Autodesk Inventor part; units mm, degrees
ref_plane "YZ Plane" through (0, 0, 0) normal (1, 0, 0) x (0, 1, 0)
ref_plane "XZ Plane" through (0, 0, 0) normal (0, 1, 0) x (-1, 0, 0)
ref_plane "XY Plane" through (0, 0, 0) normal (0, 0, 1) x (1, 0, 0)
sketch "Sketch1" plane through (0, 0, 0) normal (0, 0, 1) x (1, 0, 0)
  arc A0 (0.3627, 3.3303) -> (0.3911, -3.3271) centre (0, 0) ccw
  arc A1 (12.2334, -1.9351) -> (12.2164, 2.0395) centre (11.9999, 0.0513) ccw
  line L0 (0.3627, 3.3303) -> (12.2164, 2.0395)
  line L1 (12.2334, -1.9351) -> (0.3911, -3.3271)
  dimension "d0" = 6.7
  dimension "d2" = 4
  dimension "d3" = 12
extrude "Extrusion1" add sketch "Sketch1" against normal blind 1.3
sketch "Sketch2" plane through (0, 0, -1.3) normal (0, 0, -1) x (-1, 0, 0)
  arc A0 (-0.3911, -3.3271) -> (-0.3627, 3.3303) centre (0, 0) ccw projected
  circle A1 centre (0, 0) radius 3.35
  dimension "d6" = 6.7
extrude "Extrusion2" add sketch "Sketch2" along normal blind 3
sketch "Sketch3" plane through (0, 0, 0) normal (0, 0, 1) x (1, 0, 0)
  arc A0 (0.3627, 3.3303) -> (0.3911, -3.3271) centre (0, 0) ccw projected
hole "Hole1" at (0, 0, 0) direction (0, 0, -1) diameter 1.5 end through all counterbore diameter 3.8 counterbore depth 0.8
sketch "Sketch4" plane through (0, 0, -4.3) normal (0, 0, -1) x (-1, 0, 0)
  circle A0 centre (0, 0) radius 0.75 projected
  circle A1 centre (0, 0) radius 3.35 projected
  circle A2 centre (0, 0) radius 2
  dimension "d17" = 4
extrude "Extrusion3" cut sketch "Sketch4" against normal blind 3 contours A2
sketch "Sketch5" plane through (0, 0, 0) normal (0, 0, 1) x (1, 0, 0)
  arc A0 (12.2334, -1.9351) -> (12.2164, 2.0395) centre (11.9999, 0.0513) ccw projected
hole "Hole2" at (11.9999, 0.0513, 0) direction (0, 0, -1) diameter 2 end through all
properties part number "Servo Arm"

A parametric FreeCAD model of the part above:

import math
import FreeCAD as App
import Part
import Sketcher
from FreeCAD import Vector

doc = App.newDocument("Part")
body = doc.addObject("PartDesign::Body", "Body")

sketch1 = doc.addObject("Sketcher::SketchObject", "Sketch")
body.addObject(sketch1)
sketch1.AttachmentSupport = (doc.XY_Plane, [""])
sketch1.MapMode = "FlatFace"
sketch1.addGeometry([
    Part.LineSegment(Vector(12.2, 2, 0), Vector(0.4, 3.3, 0)),
    Part.ArcOfCircle(Part.Circle(Vector(0, 0, 0), Vector(0, 0, 1), 3.3), math.radians(84), math.radians(277)),
    Part.LineSegment(Vector(0.4, -3.3, 0), Vector(12.2, -1.9, 0)),
    Part.ArcOfCircle(Part.Circle(Vector(12, 0.1, 0), Vector(0, 0, 1), 2), math.radians(-83), math.radians(84)),
], False)
sketch1.addConstraint([
    Sketcher.Constraint("Tangent", 0, 2, 1, 1),
    Sketcher.Constraint("Tangent", 1, 2, 2, 1),
    Sketcher.Constraint("Tangent", 2, 2, 3, 1),
    Sketcher.Constraint("Tangent", 3, 2, 0, 1),
    Sketcher.Constraint("Coincident", 1, 3, -1, 1),
    Sketcher.Constraint("Radius", 3, 2.0),
    Sketcher.Constraint("Radius", 1, 3.35),
    Sketcher.Constraint("DistanceX", -1, 1, 3, 3, 12.0),
    Sketcher.Constraint("DistanceX", -1, 1, 1, 2, 0.391),
])
pad1 = doc.addObject("PartDesign::Pad", "Pad")
body.addObject(pad1)
pad1.Profile = sketch1
pad1.Length = 1.3
pad1.Reversed = True

sketch2 = doc.addObject("Sketcher::SketchObject", "Sketch001")
body.addObject(sketch2)
sketch2.AttachmentSupport = (doc.XY_Plane, [""])
sketch2.MapMode = "FlatFace"
sketch2.AttachmentOffset = App.Placement(Vector(0, 0, -1.3), App.Rotation())
sketch2.addGeometry([
    Part.ArcOfCircle(Part.Circle(Vector(0, 0, 0), Vector(0, 0, 1), 3.4), math.radians(-83), math.radians(84)),
    Part.ArcOfCircle(Part.Circle(Vector(0, 0, 0), Vector(0, 0, 1), 3.4), math.radians(84), math.radians(277)),
], False)
sketch2.addConstraint([
    Sketcher.Constraint("Tangent", 0, 1, 1, 2),
    Sketcher.Constraint("Coincident", 1, 1, 0, 2),
    Sketcher.Constraint("Coincident", 0, 3, -1, 1),
    Sketcher.Constraint("Radius", 0, 3.35),
    Sketcher.Constraint("DistanceX", -1, 1, 0, 1, 0.391),
    Sketcher.Constraint("DistanceX", -1, 1, 1, 1, 0.3627),
])
pad2 = doc.addObject("PartDesign::Pad", "Pad001")
body.addObject(pad2)
pad2.Profile = sketch2
pad2.Length = 3
pad2.Reversed = True

sketch3 = doc.addObject("Sketcher::SketchObject", "Sketch002")
body.addObject(sketch3)
sketch3.AttachmentSupport = (doc.XY_Plane, [""])
sketch3.MapMode = "FlatFace"
sketch3.addGeometry(Part.Circle(Vector(0, 0, 0), Vector(0, 0, 1), 0.8), False)
sketch3.addConstraint([
    Sketcher.Constraint("Coincident", 0, 3, -1, 1),
    Sketcher.Constraint("Diameter", 0, 1.5),
])
doc.recompute()
hole = doc.addObject("PartDesign::Hole", "Hole")
body.addObject(hole)
hole.Profile = sketch3
hole.ThreadType = "None"
hole.Diameter = 1.5
hole.DepthType = "ThroughAll"
hole.HoleCutType = "Counterbore"
hole.HoleCutDiameter = 3.8
hole.HoleCutDepth = 0.8

sketch4 = doc.addObject("Sketcher::SketchObject", "Sketch003")
body.addObject(sketch4)
sketch4.AttachmentSupport = (doc.XY_Plane, [""])
sketch4.MapMode = "FlatFace"
sketch4.AttachmentOffset = App.Placement(Vector(0, 0, -4.3), App.Rotation())
sketch4.addGeometry([
    Part.Circle(Vector(0, 0, 0), Vector(0, 0, 1), 2),
    Part.Circle(Vector(0, 0, 0), Vector(0, 0, 1), 0.8),
], False)
sketch4.addConstraint([
    Sketcher.Constraint("Coincident", 0, 3, -1, 1),
    Sketcher.Constraint("Coincident", 1, 3, -1, 1),
    Sketcher.Constraint("Diameter", 0, 4.0),
    Sketcher.Constraint("Diameter", 1, 1.5),
])
pocket1 = doc.addObject("PartDesign::Pocket", "Pocket")
body.addObject(pocket1)
pocket1.Profile = sketch4
pocket1.Length = 3
pocket1.Reversed = True

sketch5 = doc.addObject("Sketcher::SketchObject", "Sketch004")
body.addObject(sketch5)
sketch5.AttachmentSupport = (doc.XY_Plane, [""])
sketch5.MapMode = "FlatFace"
sketch5.addGeometry(Part.Circle(Vector(12, 0.1, 0), Vector(0, 0, 1), 1), False)
sketch5.addConstraint([
    Sketcher.Constraint("Diameter", 0, 2.0),
    Sketcher.Constraint("DistanceX", -1, 1, 0, 3, 12.0),
    Sketcher.Constraint("DistanceY", -1, 1, 0, 3, 0.0513),
])
doc.recompute()
hole2 = doc.addObject("PartDesign::Hole", "Hole001")
body.addObject(hole2)
hole2.Profile = sketch5
hole2.ThreadType = "None"
hole2.Diameter = 2
hole2.DepthType = "ThroughAll"

doc.recompute()
